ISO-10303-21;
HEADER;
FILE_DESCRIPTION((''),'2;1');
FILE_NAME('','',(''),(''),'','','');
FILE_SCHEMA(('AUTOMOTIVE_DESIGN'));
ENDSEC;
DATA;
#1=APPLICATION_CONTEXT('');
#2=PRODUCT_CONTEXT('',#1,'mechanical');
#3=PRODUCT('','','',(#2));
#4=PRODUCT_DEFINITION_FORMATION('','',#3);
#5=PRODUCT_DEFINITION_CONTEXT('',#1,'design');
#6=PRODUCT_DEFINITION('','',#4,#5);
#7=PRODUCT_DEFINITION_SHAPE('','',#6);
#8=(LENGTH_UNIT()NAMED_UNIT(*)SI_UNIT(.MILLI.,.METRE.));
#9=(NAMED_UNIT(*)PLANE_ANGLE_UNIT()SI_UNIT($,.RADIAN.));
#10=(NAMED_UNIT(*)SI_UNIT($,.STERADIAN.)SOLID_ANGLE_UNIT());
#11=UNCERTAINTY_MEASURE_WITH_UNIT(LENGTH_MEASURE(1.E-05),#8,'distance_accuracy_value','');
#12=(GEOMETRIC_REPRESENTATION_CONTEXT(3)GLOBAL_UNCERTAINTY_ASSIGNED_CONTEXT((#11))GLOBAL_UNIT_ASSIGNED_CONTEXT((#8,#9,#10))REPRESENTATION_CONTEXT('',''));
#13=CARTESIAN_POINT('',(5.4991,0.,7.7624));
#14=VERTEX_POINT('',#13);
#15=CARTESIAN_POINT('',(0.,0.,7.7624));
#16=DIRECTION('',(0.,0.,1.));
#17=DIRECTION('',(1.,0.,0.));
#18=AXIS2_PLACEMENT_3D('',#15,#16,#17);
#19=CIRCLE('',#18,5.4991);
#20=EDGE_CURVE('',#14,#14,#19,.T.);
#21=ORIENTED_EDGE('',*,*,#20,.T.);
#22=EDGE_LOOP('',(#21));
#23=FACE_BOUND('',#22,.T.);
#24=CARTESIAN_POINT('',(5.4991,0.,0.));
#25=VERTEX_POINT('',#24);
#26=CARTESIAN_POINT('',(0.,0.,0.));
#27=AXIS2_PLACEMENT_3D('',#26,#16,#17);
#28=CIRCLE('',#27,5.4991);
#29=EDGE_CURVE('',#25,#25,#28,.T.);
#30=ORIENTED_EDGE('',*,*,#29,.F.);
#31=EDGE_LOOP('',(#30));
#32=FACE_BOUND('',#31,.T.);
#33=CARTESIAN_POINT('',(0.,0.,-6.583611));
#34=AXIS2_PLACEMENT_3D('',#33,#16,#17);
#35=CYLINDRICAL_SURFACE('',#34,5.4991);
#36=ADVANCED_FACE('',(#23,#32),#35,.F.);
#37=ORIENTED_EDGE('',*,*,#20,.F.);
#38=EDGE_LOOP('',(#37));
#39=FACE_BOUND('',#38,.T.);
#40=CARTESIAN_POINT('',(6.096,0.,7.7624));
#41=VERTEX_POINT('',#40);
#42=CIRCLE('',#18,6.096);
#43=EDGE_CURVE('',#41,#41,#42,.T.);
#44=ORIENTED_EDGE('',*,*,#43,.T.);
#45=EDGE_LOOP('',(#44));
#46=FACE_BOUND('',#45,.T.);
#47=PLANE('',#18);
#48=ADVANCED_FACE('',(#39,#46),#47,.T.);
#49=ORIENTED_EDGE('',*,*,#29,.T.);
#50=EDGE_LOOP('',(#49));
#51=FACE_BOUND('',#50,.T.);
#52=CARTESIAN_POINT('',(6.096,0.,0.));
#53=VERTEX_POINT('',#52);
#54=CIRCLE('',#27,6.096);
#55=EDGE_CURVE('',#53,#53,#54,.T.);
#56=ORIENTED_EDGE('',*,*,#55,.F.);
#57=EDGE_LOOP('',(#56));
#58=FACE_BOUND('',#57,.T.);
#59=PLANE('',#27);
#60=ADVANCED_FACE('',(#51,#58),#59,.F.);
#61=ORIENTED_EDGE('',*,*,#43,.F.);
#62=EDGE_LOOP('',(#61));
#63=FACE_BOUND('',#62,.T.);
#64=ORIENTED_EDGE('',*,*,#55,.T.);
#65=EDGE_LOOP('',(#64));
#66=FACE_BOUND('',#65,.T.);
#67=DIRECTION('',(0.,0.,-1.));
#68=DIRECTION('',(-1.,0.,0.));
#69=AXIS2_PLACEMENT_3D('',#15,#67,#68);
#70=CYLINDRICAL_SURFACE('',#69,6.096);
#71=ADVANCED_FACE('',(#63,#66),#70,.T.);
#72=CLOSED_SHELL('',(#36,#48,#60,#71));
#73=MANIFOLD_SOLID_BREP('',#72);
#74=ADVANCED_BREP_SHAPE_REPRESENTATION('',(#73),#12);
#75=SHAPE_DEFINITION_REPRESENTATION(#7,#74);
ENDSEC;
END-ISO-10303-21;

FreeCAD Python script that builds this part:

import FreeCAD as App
import Part
import Sketcher

V = App.Vector
Q = App.Units.Quantity

doc = App.newDocument("Part")
body = doc.addObject("PartDesign::Body", "Body")

# Sketch on XY plane
sketch1 = body.newObject("Sketcher::SketchObject", "Sketch")
sketch1.AttachmentSupport = (doc.getObject("XY_Plane"), [""])
sketch1.MapMode = "FlatFace"
sketch1.addGeometry(Part.Circle(V(0, 0, 0), V(0, 0, 1), 6.096), False)
sketch1.addConstraint([
    Sketcher.Constraint("Coincident", 0, 3, -1, 1),
    Sketcher.Constraint("Diameter", 0, Q("0.48 in")),
])
pad1 = body.newObject("PartDesign::Pad", "Pad")
pad1.Profile = sketch1
pad1.Length = 7.7624

# Sketch on XY plane
sketch2 = body.newObject("Sketcher::SketchObject", "Sketch001")
sketch2.AttachmentSupport = (doc.getObject("XY_Plane"), [""])
sketch2.MapMode = "FlatFace"
sketch2.AttachmentOffset = App.Placement(V(0, 0, 7.7624), App.Rotation())
sketch2.addGeometry(Part.Circle(V(0, 0, 0), V(0, 0, 1), 5.4991), False)
sketch2.addConstraint([
    Sketcher.Constraint("Coincident", 0, 3, -1, 1),
    Sketcher.Constraint("Diameter", 0, Q("0.433 in")),
])
pocket1 = body.newObject("PartDesign::Pocket", "Pocket")
pocket1.Profile = sketch2
pocket1.Length = 14.34601

doc.recompute()
